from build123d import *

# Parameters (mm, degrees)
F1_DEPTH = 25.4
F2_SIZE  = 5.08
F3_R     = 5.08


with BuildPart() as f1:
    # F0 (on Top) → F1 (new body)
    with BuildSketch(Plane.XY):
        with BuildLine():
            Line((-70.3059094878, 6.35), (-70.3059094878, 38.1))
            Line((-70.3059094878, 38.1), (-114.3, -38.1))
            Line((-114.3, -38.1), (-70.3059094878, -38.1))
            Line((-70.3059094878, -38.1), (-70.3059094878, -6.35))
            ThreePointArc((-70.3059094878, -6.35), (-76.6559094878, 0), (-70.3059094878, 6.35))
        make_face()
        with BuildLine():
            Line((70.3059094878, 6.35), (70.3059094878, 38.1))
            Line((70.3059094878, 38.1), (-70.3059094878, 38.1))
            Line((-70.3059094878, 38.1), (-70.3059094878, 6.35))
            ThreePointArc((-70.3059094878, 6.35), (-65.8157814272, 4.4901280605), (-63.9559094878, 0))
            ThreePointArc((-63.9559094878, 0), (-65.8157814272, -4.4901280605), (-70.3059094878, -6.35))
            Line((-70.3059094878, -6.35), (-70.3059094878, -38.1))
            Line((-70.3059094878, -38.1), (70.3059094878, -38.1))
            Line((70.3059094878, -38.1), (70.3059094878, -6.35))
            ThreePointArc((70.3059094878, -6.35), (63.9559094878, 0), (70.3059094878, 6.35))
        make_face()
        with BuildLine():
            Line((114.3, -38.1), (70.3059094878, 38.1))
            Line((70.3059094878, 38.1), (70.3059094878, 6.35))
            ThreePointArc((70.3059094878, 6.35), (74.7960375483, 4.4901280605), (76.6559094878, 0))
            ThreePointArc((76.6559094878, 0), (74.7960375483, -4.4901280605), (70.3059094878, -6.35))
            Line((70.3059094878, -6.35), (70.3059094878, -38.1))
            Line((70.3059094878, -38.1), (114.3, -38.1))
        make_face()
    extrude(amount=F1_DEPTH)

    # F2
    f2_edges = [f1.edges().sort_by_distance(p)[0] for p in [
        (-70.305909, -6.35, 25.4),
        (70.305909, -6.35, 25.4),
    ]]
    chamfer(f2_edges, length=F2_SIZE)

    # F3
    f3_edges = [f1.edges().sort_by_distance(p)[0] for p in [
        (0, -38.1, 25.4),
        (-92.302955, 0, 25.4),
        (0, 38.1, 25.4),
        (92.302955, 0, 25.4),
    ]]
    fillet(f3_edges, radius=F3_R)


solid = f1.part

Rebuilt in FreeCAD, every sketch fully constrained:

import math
import FreeCAD as App
import Part
import Sketcher
from FreeCAD import Vector
Q = App.Units.Quantity


def edges_at(feature, points):
    """Names of the edges that pass closest to the given points."""
    edges = feature.Shape.Edges
    near = lambda p: min(range(len(edges)), key=lambda i: edges[i].distToShape(Part.Vertex(*p))[0])
    return sorted({f"Edge{near(p) + 1}" for p in points})


def add_polygon(sketch, points):
    """Adds a closed chain of lines whose ends are joined by coincident constraints."""
    first, n = sketch.GeometryCount, len(points)
    for a, b in zip(points, points[1:] + points[:1]):
        sketch.addGeometry(Part.LineSegment(App.Vector(*a, 0), App.Vector(*b, 0)), False)
    for i in range(n):
        sketch.addConstraint(Sketcher.Constraint("Coincident", first + i, 2, first + (i + 1) % n, 1))

doc = App.newDocument("Part")
body = doc.addObject("PartDesign::Body", "Body")

sketch1 = doc.addObject("Sketcher::SketchObject", "Sketch")
body.addObject(sketch1)
sketch1.AttachmentSupport = (doc.XY_Plane, [""])
sketch1.MapMode = "FlatFace"
add_polygon(sketch1, [(-70.305909, 38.1), (-114.3, -38.1), (114.3, -38.1), (70.305909, 38.1)])
sketch1.addGeometry(Part.ArcOfCircle(Part.Circle(Vector(70.305909, 0, 0), Vector(0, 0, 1), 6.35), math.radians(90), math.radians(270)), False)
sketch1.addGeometry(Part.ArcOfCircle(Part.Circle(Vector(70.305909, 0, 0), Vector(0, 0, 1), 6.35), math.radians(0), math.radians(90)), False)
sketch1.addGeometry(Part.ArcOfCircle(Part.Circle(Vector(70.305909, 0, 0), Vector(0, 0, 1), 6.35), math.radians(-90), math.radians(0)), False)
sketch1.addGeometry(Part.ArcOfCircle(Part.Circle(Vector(-70.305909, 0, 0), Vector(0, 0, 1), 6.35), math.radians(90), math.radians(270)), False)
sketch1.addGeometry(Part.ArcOfCircle(Part.Circle(Vector(-70.305909, 0, 0), Vector(0, 0, 1), 6.35), math.radians(0), math.radians(90)), False)
sketch1.addGeometry(Part.ArcOfCircle(Part.Circle(Vector(-70.305909, 0, 0), Vector(0, 0, 1), 6.35), math.radians(-90), math.radians(0)), False)
sketch1.addConstraint([
    Sketcher.Constraint("Tangent", 4, 1, 5, 2),
    Sketcher.Constraint("Tangent", 5, 1, 6, 2),
    Sketcher.Constraint("Tangent", 6, 1, 4, 2),
    Sketcher.Constraint("Tangent", 7, 1, 8, 2),
    Sketcher.Constraint("Tangent", 8, 1, 9, 2),
    Sketcher.Constraint("Tangent", 9, 1, 7, 2),
    Sketcher.Constraint("Horizontal", 1),
    Sketcher.Constraint("Horizontal", 3),
    Sketcher.Constraint("Equal", 6, 7),
    Sketcher.Constraint("Symmetric", 4, 3, 7, 3, -1, 1),
    Sketcher.Constraint("Symmetric", 4, 1, 7, 1, -2),
    Sketcher.Constraint("PointOnObject", 5, 1, -1),
    Sketcher.Constraint("PointOnObject", 8, 1, -1),
    Sketcher.Constraint("Vertical", 6, 3, 2, 2),
    Sketcher.Constraint("Vertical", 9, 3, 3, 2),
    Sketcher.Constraint("Vertical", 2, 2, 4, 1),
    Sketcher.Constraint("Vertical", 4, 1, 6, 1),
    Sketcher.Constraint("Vertical", 7, 1, 9, 1),
    Sketcher.Constraint("Equal", 0, 2),
    Sketcher.Constraint("DistanceX", 1, 1, 1, 2, Q("9 in")),
    Sketcher.Constraint("Radius", 4, Q("0.25 in")),
    Sketcher.Constraint("Angle", 0, Q("-120 deg")),
    Sketcher.Constraint("DistanceY", 1, 2, 2, 2, Q("3 in")),
    Sketcher.Constraint("DistanceY", 0, 2, -1, 1, Q("1.5 in")),
])
pad1 = doc.addObject("PartDesign::Pad", "Pad")
body.addObject(pad1)
pad1.Profile = sketch1
pad1.Length = Q("1 in")
doc.recompute()

chamfer = doc.addObject("PartDesign::Chamfer", "Chamfer")
body.addObject(chamfer)
chamfer.Base = (pad1, edges_at(pad1, [(-65.816, -4.49, 25.4), (63.956, 0, 25.4)]))
chamfer.Size = Q("0.2 in")
doc.recompute()

fillet = doc.addObject("PartDesign::Fillet", "Fillet")
body.addObject(fillet)
fillet.Base = (chamfer, edges_at(chamfer, [
    (0, -38.1, 25.4),
    (-92.303, 0, 25.4),
    (0, 38.1, 25.4),
    (92.303, 0, 25.4),
]))
fillet.Radius = Q("0.2 in")

doc.recompute()
